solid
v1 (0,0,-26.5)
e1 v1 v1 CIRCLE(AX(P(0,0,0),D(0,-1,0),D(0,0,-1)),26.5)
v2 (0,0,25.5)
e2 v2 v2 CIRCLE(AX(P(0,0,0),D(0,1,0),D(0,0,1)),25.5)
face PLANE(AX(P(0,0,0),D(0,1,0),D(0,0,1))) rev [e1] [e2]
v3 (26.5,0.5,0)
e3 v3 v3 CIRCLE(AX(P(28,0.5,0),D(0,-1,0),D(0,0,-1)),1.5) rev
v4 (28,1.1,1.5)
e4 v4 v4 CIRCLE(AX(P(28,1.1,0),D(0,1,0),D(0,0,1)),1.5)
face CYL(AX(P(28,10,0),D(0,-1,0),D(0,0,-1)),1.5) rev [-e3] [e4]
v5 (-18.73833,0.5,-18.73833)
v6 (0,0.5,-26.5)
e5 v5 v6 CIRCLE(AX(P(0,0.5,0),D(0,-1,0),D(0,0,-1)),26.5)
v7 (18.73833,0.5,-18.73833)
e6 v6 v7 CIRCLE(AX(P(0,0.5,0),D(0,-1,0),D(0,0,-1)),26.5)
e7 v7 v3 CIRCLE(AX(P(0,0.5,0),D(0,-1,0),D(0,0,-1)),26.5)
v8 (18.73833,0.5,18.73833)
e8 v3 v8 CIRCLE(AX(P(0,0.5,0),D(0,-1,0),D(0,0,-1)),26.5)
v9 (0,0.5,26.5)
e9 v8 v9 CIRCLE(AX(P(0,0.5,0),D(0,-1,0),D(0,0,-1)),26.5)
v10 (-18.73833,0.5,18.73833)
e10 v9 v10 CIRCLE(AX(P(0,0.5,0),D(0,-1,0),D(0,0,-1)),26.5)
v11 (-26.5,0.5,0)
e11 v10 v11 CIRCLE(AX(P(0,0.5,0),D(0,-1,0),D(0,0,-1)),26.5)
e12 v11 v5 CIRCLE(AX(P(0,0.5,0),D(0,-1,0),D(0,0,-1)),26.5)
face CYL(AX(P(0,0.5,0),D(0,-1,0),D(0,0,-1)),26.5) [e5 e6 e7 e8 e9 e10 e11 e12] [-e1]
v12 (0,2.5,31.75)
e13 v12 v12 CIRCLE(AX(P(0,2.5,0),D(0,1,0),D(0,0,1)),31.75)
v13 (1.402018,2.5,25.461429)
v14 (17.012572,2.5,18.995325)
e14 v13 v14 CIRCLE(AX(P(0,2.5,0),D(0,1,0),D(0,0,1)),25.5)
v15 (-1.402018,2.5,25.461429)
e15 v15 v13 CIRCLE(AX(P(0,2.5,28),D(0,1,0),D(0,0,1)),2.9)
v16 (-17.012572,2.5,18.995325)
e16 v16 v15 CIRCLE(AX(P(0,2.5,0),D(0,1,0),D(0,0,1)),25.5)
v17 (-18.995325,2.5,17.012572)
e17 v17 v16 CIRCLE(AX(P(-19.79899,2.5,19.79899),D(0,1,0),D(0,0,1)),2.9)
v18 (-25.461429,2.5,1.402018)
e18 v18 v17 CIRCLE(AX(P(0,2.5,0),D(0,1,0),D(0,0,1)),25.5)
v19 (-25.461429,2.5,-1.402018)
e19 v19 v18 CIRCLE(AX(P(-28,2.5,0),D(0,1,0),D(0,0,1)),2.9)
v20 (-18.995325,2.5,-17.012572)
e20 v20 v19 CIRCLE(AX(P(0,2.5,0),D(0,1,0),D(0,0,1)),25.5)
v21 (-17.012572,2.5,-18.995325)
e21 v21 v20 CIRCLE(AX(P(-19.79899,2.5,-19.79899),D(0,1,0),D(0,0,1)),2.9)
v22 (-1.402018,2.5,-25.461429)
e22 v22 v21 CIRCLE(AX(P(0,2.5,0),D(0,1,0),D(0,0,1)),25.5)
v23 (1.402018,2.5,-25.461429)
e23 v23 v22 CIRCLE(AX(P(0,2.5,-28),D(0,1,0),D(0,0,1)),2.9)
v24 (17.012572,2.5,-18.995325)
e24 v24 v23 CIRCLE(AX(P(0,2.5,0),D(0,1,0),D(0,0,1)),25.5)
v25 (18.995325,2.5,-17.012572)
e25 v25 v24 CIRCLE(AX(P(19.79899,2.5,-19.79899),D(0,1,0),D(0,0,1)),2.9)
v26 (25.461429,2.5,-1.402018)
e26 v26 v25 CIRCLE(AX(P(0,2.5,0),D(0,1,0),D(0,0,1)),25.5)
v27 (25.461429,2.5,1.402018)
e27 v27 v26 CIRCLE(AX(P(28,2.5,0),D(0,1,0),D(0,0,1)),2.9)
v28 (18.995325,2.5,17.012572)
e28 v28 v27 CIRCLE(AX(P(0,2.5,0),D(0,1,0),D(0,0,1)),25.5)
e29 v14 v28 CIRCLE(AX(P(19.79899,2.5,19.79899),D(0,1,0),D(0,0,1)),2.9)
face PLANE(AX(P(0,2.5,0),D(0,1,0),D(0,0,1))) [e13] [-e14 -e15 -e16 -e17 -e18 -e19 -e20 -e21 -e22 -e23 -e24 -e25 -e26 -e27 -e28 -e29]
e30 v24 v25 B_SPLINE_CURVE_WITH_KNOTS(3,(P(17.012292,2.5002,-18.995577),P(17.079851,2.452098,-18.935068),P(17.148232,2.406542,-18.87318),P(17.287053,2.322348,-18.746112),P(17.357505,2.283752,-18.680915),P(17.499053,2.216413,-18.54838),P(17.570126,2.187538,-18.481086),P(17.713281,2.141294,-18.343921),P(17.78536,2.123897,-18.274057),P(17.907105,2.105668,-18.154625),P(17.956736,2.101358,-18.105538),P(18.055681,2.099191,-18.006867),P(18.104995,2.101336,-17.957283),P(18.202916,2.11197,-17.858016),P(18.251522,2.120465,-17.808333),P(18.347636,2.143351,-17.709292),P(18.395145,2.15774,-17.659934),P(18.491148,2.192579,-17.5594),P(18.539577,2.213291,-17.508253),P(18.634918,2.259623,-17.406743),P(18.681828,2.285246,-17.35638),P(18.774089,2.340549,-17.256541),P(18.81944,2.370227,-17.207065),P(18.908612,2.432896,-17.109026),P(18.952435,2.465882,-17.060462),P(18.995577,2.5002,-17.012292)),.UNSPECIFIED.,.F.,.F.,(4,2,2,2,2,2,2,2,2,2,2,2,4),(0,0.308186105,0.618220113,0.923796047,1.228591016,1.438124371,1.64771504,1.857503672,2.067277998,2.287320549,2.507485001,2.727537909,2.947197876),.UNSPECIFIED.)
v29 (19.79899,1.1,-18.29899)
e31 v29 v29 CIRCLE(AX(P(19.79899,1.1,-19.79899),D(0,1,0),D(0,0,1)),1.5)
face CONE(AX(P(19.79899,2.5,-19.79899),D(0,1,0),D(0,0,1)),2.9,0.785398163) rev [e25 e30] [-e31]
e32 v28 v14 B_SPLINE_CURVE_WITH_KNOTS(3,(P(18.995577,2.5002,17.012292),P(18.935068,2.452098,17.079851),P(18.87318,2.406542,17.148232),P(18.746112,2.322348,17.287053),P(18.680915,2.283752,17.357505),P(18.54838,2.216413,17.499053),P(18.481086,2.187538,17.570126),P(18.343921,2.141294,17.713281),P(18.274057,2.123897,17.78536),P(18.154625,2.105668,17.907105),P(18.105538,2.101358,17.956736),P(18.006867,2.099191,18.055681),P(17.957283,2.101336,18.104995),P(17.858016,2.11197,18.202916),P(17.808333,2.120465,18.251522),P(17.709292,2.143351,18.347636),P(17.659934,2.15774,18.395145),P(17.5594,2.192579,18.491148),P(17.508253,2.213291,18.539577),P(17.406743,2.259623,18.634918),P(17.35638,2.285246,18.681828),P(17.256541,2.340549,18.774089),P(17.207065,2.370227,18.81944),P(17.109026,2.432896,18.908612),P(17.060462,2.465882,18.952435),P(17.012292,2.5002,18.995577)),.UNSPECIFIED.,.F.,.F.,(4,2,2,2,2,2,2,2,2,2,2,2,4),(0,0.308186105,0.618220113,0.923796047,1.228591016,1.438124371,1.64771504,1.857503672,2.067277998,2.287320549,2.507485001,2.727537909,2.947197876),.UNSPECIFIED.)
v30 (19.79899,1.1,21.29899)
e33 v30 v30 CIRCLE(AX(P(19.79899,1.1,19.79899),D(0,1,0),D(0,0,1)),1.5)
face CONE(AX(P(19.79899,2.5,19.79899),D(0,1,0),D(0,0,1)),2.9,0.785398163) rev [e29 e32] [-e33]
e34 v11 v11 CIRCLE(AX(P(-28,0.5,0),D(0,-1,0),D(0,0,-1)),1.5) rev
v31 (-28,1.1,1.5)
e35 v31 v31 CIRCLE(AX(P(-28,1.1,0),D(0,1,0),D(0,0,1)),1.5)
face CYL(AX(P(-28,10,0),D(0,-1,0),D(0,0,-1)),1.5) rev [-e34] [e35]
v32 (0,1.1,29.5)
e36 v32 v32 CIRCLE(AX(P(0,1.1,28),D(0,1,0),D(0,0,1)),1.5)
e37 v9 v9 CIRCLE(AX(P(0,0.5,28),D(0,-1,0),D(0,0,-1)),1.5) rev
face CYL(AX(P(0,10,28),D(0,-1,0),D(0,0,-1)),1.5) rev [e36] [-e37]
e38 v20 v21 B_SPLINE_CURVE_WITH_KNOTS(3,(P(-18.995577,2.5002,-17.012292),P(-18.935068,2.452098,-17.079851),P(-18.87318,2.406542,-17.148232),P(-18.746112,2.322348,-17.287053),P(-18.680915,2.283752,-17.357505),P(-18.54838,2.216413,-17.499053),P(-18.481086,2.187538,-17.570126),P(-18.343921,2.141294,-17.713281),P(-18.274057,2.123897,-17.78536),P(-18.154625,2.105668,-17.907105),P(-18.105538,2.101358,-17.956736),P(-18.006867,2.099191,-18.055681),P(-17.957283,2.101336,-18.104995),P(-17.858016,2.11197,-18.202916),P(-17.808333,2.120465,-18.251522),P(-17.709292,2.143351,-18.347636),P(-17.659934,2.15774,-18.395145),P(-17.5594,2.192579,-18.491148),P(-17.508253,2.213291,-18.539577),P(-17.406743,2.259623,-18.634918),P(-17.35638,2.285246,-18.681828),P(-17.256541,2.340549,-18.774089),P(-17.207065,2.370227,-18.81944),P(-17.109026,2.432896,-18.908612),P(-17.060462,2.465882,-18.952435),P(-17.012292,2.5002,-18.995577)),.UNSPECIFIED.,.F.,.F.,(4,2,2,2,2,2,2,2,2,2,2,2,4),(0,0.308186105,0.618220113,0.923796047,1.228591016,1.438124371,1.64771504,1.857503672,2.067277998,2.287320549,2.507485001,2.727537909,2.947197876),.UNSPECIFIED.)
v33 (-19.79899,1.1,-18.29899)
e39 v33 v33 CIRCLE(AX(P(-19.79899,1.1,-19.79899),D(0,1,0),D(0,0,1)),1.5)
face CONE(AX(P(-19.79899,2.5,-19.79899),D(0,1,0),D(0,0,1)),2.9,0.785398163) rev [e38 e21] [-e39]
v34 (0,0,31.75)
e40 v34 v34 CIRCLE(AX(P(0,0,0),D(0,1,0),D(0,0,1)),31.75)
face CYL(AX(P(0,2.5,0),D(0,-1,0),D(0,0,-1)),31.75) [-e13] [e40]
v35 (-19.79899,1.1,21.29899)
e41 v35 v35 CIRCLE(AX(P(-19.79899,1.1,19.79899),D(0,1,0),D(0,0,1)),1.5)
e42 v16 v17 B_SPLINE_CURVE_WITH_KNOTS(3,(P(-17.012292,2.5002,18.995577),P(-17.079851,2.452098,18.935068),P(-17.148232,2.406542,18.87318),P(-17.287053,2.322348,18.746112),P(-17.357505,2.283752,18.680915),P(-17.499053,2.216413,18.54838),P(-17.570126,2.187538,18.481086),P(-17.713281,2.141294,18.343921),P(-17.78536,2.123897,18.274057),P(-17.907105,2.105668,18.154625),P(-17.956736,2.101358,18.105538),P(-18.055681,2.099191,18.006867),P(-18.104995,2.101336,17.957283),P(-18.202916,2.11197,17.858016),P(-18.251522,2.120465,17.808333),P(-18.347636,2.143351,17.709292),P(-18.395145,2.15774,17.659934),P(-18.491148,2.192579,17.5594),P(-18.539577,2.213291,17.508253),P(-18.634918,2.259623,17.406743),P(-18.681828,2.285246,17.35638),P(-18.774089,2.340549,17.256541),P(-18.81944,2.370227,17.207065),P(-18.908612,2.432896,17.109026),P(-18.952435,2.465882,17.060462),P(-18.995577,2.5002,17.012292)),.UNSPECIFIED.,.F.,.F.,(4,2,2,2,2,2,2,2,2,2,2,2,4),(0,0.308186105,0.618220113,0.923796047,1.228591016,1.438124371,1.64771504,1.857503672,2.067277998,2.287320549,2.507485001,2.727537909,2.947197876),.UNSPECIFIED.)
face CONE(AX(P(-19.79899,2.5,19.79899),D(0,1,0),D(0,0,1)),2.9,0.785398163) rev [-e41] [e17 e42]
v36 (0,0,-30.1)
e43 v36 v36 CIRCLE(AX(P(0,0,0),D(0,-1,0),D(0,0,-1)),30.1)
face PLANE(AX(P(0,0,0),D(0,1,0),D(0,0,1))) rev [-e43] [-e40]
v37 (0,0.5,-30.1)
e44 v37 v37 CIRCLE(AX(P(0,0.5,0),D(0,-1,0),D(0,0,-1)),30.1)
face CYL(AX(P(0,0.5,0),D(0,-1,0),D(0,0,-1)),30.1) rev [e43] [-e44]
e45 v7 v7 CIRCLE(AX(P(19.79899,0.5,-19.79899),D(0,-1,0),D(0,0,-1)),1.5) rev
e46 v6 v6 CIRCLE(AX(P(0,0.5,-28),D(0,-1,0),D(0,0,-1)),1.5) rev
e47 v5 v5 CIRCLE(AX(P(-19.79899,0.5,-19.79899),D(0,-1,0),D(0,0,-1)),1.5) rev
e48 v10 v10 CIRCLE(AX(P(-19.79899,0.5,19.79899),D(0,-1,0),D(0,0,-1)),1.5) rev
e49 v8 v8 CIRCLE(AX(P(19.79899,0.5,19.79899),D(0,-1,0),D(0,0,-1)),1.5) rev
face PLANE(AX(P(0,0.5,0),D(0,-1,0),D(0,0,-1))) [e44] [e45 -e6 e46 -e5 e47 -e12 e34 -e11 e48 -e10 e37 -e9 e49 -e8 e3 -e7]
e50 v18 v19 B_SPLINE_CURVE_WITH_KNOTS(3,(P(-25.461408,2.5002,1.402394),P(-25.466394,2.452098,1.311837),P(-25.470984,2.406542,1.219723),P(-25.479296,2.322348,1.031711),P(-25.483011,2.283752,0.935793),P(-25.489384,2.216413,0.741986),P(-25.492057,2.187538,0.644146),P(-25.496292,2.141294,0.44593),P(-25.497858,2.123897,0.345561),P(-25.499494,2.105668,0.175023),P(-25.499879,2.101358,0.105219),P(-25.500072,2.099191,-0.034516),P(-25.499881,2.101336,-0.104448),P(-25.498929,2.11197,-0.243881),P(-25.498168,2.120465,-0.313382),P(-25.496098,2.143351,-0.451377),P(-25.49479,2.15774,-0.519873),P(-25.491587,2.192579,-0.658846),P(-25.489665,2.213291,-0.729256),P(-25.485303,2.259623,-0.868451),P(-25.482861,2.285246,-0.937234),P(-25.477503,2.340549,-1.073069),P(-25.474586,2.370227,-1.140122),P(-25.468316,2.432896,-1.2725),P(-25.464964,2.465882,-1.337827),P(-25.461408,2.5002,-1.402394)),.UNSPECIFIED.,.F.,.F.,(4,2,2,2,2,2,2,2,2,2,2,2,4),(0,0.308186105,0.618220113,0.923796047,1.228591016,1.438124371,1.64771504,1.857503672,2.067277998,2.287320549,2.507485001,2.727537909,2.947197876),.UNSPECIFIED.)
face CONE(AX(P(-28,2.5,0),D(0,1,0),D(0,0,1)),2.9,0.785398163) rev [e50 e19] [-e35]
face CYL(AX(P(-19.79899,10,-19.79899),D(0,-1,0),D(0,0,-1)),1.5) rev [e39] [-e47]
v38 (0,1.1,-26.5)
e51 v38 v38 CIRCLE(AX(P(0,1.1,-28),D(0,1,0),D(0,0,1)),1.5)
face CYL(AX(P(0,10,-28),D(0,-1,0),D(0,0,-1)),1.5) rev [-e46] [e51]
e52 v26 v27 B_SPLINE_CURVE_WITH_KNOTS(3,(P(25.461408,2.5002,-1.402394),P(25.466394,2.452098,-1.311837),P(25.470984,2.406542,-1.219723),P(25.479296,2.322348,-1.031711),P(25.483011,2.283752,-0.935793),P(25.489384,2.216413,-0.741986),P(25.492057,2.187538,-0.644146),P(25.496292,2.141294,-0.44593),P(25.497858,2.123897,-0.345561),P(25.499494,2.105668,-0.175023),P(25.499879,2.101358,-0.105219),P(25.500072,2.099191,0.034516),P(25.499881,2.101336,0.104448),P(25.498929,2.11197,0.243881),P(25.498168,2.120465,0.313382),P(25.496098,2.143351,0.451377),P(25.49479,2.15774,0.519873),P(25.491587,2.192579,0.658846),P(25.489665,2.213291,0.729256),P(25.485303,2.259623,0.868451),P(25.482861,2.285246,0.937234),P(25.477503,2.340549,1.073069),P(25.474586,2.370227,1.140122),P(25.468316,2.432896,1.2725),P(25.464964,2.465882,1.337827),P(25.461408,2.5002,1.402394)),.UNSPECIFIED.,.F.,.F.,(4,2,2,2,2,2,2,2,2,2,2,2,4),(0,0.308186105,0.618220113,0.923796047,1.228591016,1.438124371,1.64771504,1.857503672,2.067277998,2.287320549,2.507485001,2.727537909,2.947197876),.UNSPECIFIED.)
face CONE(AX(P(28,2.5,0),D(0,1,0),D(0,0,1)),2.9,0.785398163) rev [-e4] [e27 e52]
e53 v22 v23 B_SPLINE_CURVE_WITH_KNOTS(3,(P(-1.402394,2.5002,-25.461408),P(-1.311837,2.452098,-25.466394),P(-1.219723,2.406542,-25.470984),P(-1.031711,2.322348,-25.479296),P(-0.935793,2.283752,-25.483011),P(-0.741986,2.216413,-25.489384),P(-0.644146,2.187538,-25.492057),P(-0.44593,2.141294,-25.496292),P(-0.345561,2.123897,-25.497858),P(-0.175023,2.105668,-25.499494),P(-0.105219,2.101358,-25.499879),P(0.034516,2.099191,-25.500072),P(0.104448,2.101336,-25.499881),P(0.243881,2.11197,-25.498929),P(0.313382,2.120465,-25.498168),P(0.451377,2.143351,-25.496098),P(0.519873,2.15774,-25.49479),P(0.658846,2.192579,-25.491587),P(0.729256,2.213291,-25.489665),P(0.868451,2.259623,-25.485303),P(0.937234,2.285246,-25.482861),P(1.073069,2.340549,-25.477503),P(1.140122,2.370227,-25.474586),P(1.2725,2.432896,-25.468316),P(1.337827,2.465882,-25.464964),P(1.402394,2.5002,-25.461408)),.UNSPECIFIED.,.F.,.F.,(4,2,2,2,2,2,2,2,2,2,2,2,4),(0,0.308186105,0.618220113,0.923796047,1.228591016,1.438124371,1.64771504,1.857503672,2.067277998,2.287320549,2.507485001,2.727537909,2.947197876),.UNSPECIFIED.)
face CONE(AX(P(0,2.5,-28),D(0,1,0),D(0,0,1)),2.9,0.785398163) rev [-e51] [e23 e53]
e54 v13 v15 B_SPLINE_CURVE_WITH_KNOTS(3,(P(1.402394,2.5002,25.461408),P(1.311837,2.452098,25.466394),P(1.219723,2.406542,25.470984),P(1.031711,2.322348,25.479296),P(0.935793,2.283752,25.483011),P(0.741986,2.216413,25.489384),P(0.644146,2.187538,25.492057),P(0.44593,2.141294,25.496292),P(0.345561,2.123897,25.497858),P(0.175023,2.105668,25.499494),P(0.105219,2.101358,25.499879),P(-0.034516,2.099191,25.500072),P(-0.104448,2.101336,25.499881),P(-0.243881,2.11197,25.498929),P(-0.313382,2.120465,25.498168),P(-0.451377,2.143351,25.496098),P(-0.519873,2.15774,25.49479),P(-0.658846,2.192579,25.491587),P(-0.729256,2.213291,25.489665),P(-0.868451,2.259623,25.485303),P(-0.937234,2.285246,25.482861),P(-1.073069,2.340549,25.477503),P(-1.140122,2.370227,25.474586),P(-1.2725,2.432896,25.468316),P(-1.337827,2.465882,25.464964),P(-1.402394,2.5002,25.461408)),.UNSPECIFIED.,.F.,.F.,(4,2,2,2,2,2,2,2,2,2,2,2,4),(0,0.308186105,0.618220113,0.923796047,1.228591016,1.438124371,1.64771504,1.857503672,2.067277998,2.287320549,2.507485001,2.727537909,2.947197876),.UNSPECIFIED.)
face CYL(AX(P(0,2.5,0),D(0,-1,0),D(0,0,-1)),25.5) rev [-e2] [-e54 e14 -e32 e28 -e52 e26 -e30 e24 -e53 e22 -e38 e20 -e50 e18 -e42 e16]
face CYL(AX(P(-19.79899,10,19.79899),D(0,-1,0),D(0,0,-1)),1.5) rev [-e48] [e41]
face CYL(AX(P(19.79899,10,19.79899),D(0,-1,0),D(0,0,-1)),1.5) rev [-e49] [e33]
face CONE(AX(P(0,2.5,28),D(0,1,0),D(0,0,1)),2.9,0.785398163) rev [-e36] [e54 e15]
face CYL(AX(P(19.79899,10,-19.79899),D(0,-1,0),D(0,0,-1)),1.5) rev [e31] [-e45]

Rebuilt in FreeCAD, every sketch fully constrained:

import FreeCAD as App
import Part
import Sketcher

V = App.Vector
Q = App.Units.Quantity


def add_polygon(sketch, points):
    """Adds a closed chain of lines whose ends are joined by coincident constraints."""
    first, n = sketch.GeometryCount, len(points)
    for a, b in zip(points, points[1:] + points[:1]):
        sketch.addGeometry(Part.LineSegment(App.Vector(*a, 0), App.Vector(*b, 0)), False)
    for i in range(n):
        sketch.addConstraint(Sketcher.Constraint("Coincident", first + i, 2, first + (i + 1) % n, 1))

doc = App.newDocument("Part")
body = doc.addObject("PartDesign::Body", "Body")

sketch1 = body.newObject("Sketcher::SketchObject", "Sketch")
sketch1.AttachmentSupport = (doc.getObject("XZ_Plane"), [""])
sketch1.MapMode = "FlatFace"
sketch1.addGeometry(Part.Circle(V(0, 0, 0), V(0, 0, 1), 31.75), False)
sketch1.addGeometry(Part.Circle(V(0, 0, 0), V(0, 0, 1), 25.5), False)
sketch1.addConstraint(Sketcher.Constraint("Coincident", 0, 3, -1, 1))
sketch1.addConstraint(Sketcher.Constraint("Coincident", 1, 3, -1, 1))
sketch1.addConstraint(Sketcher.Constraint("Diameter", 1, 51.0))
sketch1.addConstraint(Sketcher.Constraint("Diameter", 0, 63.5))
pad1 = body.newObject("PartDesign::Pad", "Pad")
pad1.Profile = sketch1
pad1.Length = 2.5
pad1.Reversed = True

sketch2 = body.newObject("Sketcher::SketchObject", "Sketch001")
sketch2.AttachmentSupport = (doc.getObject("XZ_Plane"), [""])
sketch2.MapMode = "FlatFace"
sketch2.addGeometry(Part.Circle(V(0, -28, 0), V(0, 0, 1), 1.5), False)
sketch2.addGeometry(Part.Circle(V(-19.79899, -19.79899, 0), V(0, 0, 1), 1.5), False)
sketch2.addGeometry(Part.Circle(V(-28, 0, 0), V(0, 0, 1), 1.5), False)
sketch2.addGeometry(Part.Circle(V(-19.79899, 19.79899, 0), V(0, 0, 1), 1.5), False)
sketch2.addGeometry(Part.Circle(V(0, 28, 0), V(0, 0, 1), 1.5), False)
sketch2.addGeometry(Part.Circle(V(19.79899, 19.79899, 0), V(0, 0, 1), 1.5), False)
sketch2.addGeometry(Part.Circle(V(28, 0, 0), V(0, 0, 1), 1.5), False)
sketch2.addGeometry(Part.Circle(V(19.79899, -19.79899, 0), V(0, 0, 1), 1.5), False)
sketch2.addConstraint(Sketcher.Constraint("Equal", 0, 1))
sketch2.addConstraint(Sketcher.Constraint("Equal", 1, 2))
sketch2.addConstraint(Sketcher.Constraint("Equal", 2, 3))
sketch2.addConstraint(Sketcher.Constraint("Equal", 3, 4))
sketch2.addConstraint(Sketcher.Constraint("Equal", 4, 5))
sketch2.addConstraint(Sketcher.Constraint("Equal", 5, 6))
sketch2.addConstraint(Sketcher.Constraint("Equal", 6, 7))
sketch2.addConstraint(Sketcher.Constraint("Symmetric", 0, 3, 4, 3, -1, 1))
sketch2.addConstraint(Sketcher.Constraint("Symmetric", 1, 3, 5, 3, -1, 1))
sketch2.addConstraint(Sketcher.Constraint("Symmetric", 2, 3, 6, 3, -1, 1))
sketch2.addConstraint(Sketcher.Constraint("Symmetric", 3, 3, 7, 3, -1, 1))
sketch2.addConstraint(Sketcher.Constraint("Symmetric", 3, 3, 5, 3, -2))
sketch2.addConstraint(Sketcher.Constraint("PointOnObject", 0, 3, -2))
sketch2.addConstraint(Sketcher.Constraint("PointOnObject", 2, 3, -1))
sketch2.addConstraint(Sketcher.Constraint("Diameter", 0, 3.0))
sketch2.addConstraint(Sketcher.Constraint("DistanceY", 0, 3, -1, 1, 28.0))
sketch2.addConstraint(Sketcher.Constraint("DistanceX", 2, 3, -1, 1, 28.0))
sketch2.addConstraint(Sketcher.Constraint("DistanceX", 1, 3, -1, 1, 19.79899))
sketch2.addConstraint(Sketcher.Constraint("DistanceY", 1, 3, -1, 1, 19.79899))
pocket1 = body.newObject("PartDesign::Pocket", "Pocket")
pocket1.Profile = sketch2
pocket1.Length = 10

sketch3 = body.newObject("Sketcher::SketchObject", "Sketch002")
sketch3.AttachmentSupport = (doc.getObject("XZ_Plane"), [""])
sketch3.MapMode = "FlatFace"
sketch3.addGeometry(Part.Circle(V(0, 0, 0), V(0, 0, 1), 30.1), False)
sketch3.addGeometry(Part.Circle(V(0, 0, 0), V(0, 0, 1), 26.5), False)
sketch3.addConstraint(Sketcher.Constraint("Coincident", 0, 3, -1, 1))
sketch3.addConstraint(Sketcher.Constraint("Coincident", 1, 3, -1, 1))
sketch3.addConstraint(Sketcher.Constraint("Diameter", 1, 53.0))
sketch3.addConstraint(Sketcher.Constraint("Diameter", 0, 60.2))
pocket2 = body.newObject("PartDesign::Pocket", "Pocket001")
pocket2.Profile = sketch3
pocket2.Length = 0.5

sketch4 = body.newObject("Sketcher::SketchObject", "Sketch003")
sketch4.AttachmentSupport = (doc.getObject("YZ_Plane"), [""])
sketch4.MapMode = "FlatFace"
add_polygon(sketch4, [(0, -28), (2.5, -28), (2.5, -25.1), (1.1, -26.5), (0, -26.5)])
sketch4.addGeometry(Part.LineSegment(V(2.5, -28, 0), V(0, -28, 0)), True)
sketch4.addConstraint(Sketcher.Constraint("Horizontal", 0))
sketch4.addConstraint(Sketcher.Constraint("Vertical", 1))
sketch4.addConstraint(Sketcher.Constraint("Horizontal", 3))
sketch4.addConstraint(Sketcher.Constraint("Vertical", 4))
sketch4.addConstraint(Sketcher.Constraint("Horizontal", 5))
sketch4.addConstraint(Sketcher.Constraint("Coincident", 5, 1, 0, 2))
sketch4.addConstraint(Sketcher.Constraint("PointOnObject", 3, 2, -2))
sketch4.addConstraint(Sketcher.Constraint("PointOnObject", 5, 2, -2))
sketch4.addConstraint(Sketcher.Constraint("Angle", 2, Q("-135 deg")))
sketch4.addConstraint(Sketcher.Constraint("DistanceX", 0, 1, 0, 2, 2.5))
sketch4.addConstraint(Sketcher.Constraint("DistanceX", 3, 2, 3, 1, 1.1))
sketch4.addConstraint(Sketcher.Constraint("DistanceY", 1, 1, 1, 2, 2.9))
sketch4.addConstraint(Sketcher.Constraint("DistanceY", 0, 2, -1, 1, 28.0))
groove = body.newObject("PartDesign::Groove", "Groove")
groove.Profile = sketch4
groove.ReferenceAxis = (sketch4, ["Axis0"])
groove.Angle = 360
doc.recompute()

datumline = body.newObject("PartDesign::Line", "DatumLine")
datumline.Placement = App.Placement(V(0, 0, 0), App.Rotation(V(0, 0, 1), V(0.923879533, 0, 0.382683432)))
linearpattern = body.newObject("PartDesign::LinearPattern", "LinearPattern")
linearpattern.Originals = [groove]
linearpattern.Direction = (datumline, [""])
linearpattern.Mode = "offset"
linearpattern.Offset = 21.430272
linearpattern.Occurrences = 2
body.Tip = linearpattern
doc.recompute()

datumline2 = body.newObject("PartDesign::Line", "DatumLine001")
datumline2.Placement = App.Placement(V(0, 0, 0), App.Rotation(V(0, 0, 1), V(0.707106781, 0, 0.707106781)))
linearpattern2 = body.newObject("PartDesign::LinearPattern", "LinearPattern001")
linearpattern2.Originals = [groove]
linearpattern2.Direction = (datumline2, [""])
linearpattern2.Mode = "offset"
linearpattern2.Offset = 39.59798
linearpattern2.Occurrences = 2
body.Tip = linearpattern2
doc.recompute()

datumline3 = body.newObject("PartDesign::Line", "DatumLine002")
datumline3.Placement = App.Placement(V(0, 0, 0), App.Rotation(V(0, 0, 1), V(0.382683432, 0, 0.923879533)))
linearpattern3 = body.newObject("PartDesign::LinearPattern", "LinearPattern002")
linearpattern3.Originals = [groove]
linearpattern3.Direction = (datumline3, [""])
linearpattern3.Mode = "offset"
linearpattern3.Offset = 51.737254
linearpattern3.Occurrences = 2
body.Tip = linearpattern3
doc.recompute()

linearpattern4 = body.newObject("PartDesign::LinearPattern", "LinearPattern003")
linearpattern4.Originals = [groove]
linearpattern4.Direction = (doc.getObject("Z_Axis"), [""])
linearpattern4.Mode = "offset"
linearpattern4.Offset = 56
linearpattern4.Occurrences = 2
body.Tip = linearpattern4
doc.recompute()

datumline4 = body.newObject("PartDesign::Line", "DatumLine003")
datumline4.Placement = App.Placement(V(0, 0, 0), App.Rotation(V(0, 0, 1), V(-0.707106781, 0, 0.707106781)))
linearpattern5 = body.newObject("PartDesign::LinearPattern", "LinearPattern004")
linearpattern5.Originals = [groove]
linearpattern5.Direction = (datumline4, [""])
linearpattern5.Mode = "offset"
linearpattern5.Offset = 39.59798
linearpattern5.Occurrences = 2
body.Tip = linearpattern5
doc.recompute()

datumline5 = body.newObject("PartDesign::Line", "DatumLine004")
datumline5.Placement = App.Placement(V(0, 0, 0), App.Rotation(V(0, 0, 1), V(-0.923879533, 0, 0.382683432)))
linearpattern6 = body.newObject("PartDesign::LinearPattern", "LinearPattern005")
linearpattern6.Originals = [groove]
linearpattern6.Direction = (datumline5, [""])
linearpattern6.Mode = "offset"
linearpattern6.Offset = 21.430272
linearpattern6.Occurrences = 2
body.Tip = linearpattern6
doc.recompute()

datumline6 = body.newObject("PartDesign::Line", "DatumLine005")
datumline6.Placement = App.Placement(V(0, 0, 0), App.Rotation(V(0, 0, 1), V(-0.382683432, 0, 0.923879533)))
linearpattern7 = body.newObject("PartDesign::LinearPattern", "LinearPattern006")
linearpattern7.Originals = [groove]
linearpattern7.Direction = (datumline6, [""])
linearpattern7.Mode = "offset"
linearpattern7.Offset = 51.737254
linearpattern7.Occurrences = 2
body.Tip = linearpattern7

doc.recompute()
